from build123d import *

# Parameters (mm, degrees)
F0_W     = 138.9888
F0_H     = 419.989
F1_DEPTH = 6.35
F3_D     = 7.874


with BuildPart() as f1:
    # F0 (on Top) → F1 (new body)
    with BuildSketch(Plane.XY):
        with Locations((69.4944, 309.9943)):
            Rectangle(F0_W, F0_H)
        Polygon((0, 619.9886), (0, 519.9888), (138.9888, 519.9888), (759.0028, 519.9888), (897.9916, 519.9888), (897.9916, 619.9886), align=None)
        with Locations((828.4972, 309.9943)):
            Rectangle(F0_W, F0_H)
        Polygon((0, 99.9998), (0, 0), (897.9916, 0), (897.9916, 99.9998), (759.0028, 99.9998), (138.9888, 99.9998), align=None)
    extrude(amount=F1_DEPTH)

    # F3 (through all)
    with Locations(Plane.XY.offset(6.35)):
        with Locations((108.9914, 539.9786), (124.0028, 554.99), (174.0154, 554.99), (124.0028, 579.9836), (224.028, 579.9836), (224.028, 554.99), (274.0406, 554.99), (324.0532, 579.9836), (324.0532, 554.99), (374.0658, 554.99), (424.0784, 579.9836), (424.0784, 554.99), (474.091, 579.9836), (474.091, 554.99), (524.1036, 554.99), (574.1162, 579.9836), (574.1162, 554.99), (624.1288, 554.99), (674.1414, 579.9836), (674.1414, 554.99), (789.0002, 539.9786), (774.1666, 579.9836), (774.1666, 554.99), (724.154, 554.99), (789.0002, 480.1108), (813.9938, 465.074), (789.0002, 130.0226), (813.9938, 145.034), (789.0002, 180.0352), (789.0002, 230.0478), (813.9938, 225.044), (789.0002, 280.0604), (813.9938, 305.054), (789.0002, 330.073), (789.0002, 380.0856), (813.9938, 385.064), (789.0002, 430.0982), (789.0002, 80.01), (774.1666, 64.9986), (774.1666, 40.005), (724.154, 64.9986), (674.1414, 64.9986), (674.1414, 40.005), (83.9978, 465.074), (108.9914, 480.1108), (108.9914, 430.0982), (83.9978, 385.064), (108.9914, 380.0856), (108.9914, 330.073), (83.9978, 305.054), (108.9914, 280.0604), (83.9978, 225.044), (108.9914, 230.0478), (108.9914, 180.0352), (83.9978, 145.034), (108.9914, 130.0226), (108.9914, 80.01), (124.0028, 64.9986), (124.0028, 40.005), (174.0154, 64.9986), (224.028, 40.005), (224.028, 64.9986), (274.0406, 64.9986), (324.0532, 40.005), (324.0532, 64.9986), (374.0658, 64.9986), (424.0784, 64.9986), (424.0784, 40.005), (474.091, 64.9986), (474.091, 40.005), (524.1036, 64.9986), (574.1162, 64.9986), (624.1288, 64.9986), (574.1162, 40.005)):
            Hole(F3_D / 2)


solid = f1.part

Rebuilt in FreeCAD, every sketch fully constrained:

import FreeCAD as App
import Part
import Sketcher
Q = App.Units.Quantity

doc = App.newDocument("Part")
body = doc.addObject("PartDesign::Body", "Body")

# Sketch on XY plane
sketch1 = body.newObject("Sketcher::SketchObject", "Sketch")
sketch1.AttachmentSupport = (doc.getObject("XY_Plane"), [""])
sketch1.MapMode = "FlatFace"
sketch1.addGeometry([
    Part.LineSegment(App.Vector(897.9916, 619.9886, 0), App.Vector(0, 619.9886, 0)),  # 0
    Part.LineSegment(App.Vector(0, 619.9886, 0), App.Vector(0, 0, 0)),  # 1
    Part.LineSegment(App.Vector(0, 0, 0), App.Vector(897.9916, 0, 0)),  # 2
    Part.LineSegment(App.Vector(897.9916, 0, 0), App.Vector(897.9916, 619.9886, 0)),  # 3
    Part.LineSegment(App.Vector(138.9888, 99.9998, 0), App.Vector(138.9888, 519.9888, 0)),  # 4
    Part.LineSegment(App.Vector(138.9888, 519.9888, 0), App.Vector(759.0028, 519.9888, 0)),  # 5
    Part.LineSegment(App.Vector(759.0028, 519.9888, 0), App.Vector(759.0028, 99.9998, 0)),  # 6
    Part.LineSegment(App.Vector(759.0028, 99.9998, 0), App.Vector(138.9888, 99.9998, 0)),  # 7
], False)
sketch1.addConstraint([
    Sketcher.Constraint("Coincident", 0, 2, 1, 1),
    Sketcher.Constraint("Coincident", 1, 2, 2, 1),
    Sketcher.Constraint("Coincident", 2, 2, 3, 1),
    Sketcher.Constraint("Coincident", 3, 2, 0, 1),
    Sketcher.Constraint("Coincident", 4, 2, 5, 1),
    Sketcher.Constraint("Coincident", 5, 2, 6, 1),
    Sketcher.Constraint("Coincident", 6, 2, 7, 1),
    Sketcher.Constraint("Coincident", 7, 2, 4, 1),
    Sketcher.Constraint("Horizontal", 0),
    Sketcher.Constraint("Vertical", 1),
    Sketcher.Constraint("Horizontal", 2),
    Sketcher.Constraint("Vertical", 3),
    Sketcher.Constraint("Vertical", 4),
    Sketcher.Constraint("Horizontal", 5),
    Sketcher.Constraint("Vertical", 6),
    Sketcher.Constraint("Horizontal", 7),
    Sketcher.Constraint("Coincident", 1, 2, -1, 1),
    Sketcher.Constraint("DistanceX", 5, 1, 5, 2, Q("24.41 in")),
    Sketcher.Constraint("DistanceX", 0, 2, 0, 1, Q("35.354 in")),
    Sketcher.Constraint("DistanceY", 1, 2, 1, 1, Q("24.409 in")),
    Sketcher.Constraint("DistanceY", 4, 1, 4, 2, Q("16.535 in")),
    Sketcher.Constraint("DistanceX", -1, 1, 4, 2, Q("5.472 in")),
    Sketcher.Constraint("DistanceY", -1, 1, 4, 2, Q("20.472 in")),
])
pad1 = body.newObject("PartDesign::Pad", "Pad")
pad1.Profile = sketch1
pad1.Length = Q("0.25 in")

# Sketch on XY plane
sketch2 = body.newObject("Sketcher::SketchObject", "Sketch001")
sketch2.AttachmentSupport = (doc.getObject("XY_Plane"), [""])
sketch2.MapMode = "FlatFace"
sketch2.AttachmentOffset = App.Placement(App.Vector(0, 0, 0.25 * 25.4), App.Rotation())
sketch2.addGeometry([
    Part.Circle(App.Vector(108.9914, 539.9786, 0), App.Vector(0, 0, 1), 3.937),  # 0
    Part.Circle(App.Vector(124.0028, 554.99, 0), App.Vector(0, 0, 1), 3.937),  # 1
    Part.Circle(App.Vector(174.0154, 554.99, 0), App.Vector(0, 0, 1), 3.937),  # 2
    Part.Circle(App.Vector(124.0028, 579.9836, 0), App.Vector(0, 0, 1), 3.937),  # 3
    Part.Circle(App.Vector(224.028, 579.9836, 0), App.Vector(0, 0, 1), 3.937),  # 4
    Part.Circle(App.Vector(224.028, 554.99, 0), App.Vector(0, 0, 1), 3.937),  # 5
    Part.Circle(App.Vector(274.0406, 554.99, 0), App.Vector(0, 0, 1), 3.937),  # 6
    Part.Circle(App.Vector(324.0532, 579.9836, 0), App.Vector(0, 0, 1), 3.937),  # 7
    Part.Circle(App.Vector(324.0532, 554.99, 0), App.Vector(0, 0, 1), 3.937),  # 8
    Part.Circle(App.Vector(374.0658, 554.99, 0), App.Vector(0, 0, 1), 3.937),  # 9
    Part.Circle(App.Vector(424.0784, 579.9836, 0), App.Vector(0, 0, 1), 3.937),  # 10
    Part.Circle(App.Vector(424.0784, 554.99, 0), App.Vector(0, 0, 1), 3.937),  # 11
    Part.Circle(App.Vector(474.091, 579.9836, 0), App.Vector(0, 0, 1), 3.937),  # 12
    Part.Circle(App.Vector(474.091, 554.99, 0), App.Vector(0, 0, 1), 3.937),  # 13
    Part.Circle(App.Vector(524.1036, 554.99, 0), App.Vector(0, 0, 1), 3.937),  # 14
    Part.Circle(App.Vector(574.1162, 579.9836, 0), App.Vector(0, 0, 1), 3.937),  # 15
    Part.Circle(App.Vector(574.1162, 554.99, 0), App.Vector(0, 0, 1), 3.937),  # 16
    Part.Circle(App.Vector(624.1288, 554.99, 0), App.Vector(0, 0, 1), 3.937),  # 17
    Part.Circle(App.Vector(674.1414, 579.9836, 0), App.Vector(0, 0, 1), 3.937),  # 18
    Part.Circle(App.Vector(674.1414, 554.99, 0), App.Vector(0, 0, 1), 3.937),  # 19
    Part.Circle(App.Vector(789.0002, 539.9786, 0), App.Vector(0, 0, 1), 3.937),  # 20
    Part.Circle(App.Vector(774.1666, 579.9836, 0), App.Vector(0, 0, 1), 3.937),  # 21
    Part.Circle(App.Vector(774.1666, 554.99, 0), App.Vector(0, 0, 1), 3.937),  # 22
    Part.Circle(App.Vector(724.154, 554.99, 0), App.Vector(0, 0, 1), 3.937),  # 23
    Part.Circle(App.Vector(789.0002, 480.1108, 0), App.Vector(0, 0, 1), 3.937),  # 24
    Part.Circle(App.Vector(813.9938, 465.074, 0), App.Vector(0, 0, 1), 3.937),  # 25
    Part.Circle(App.Vector(789.0002, 130.0226, 0), App.Vector(0, 0, 1), 3.937),  # 26
    Part.Circle(App.Vector(813.9938, 145.034, 0), App.Vector(0, 0, 1), 3.937),  # 27
    Part.Circle(App.Vector(789.0002, 180.0352, 0), App.Vector(0, 0, 1), 3.937),  # 28
    Part.Circle(App.Vector(789.0002, 230.0478, 0), App.Vector(0, 0, 1), 3.937),  # 29
    Part.Circle(App.Vector(813.9938, 225.044, 0), App.Vector(0, 0, 1), 3.937),  # 30
    Part.Circle(App.Vector(789.0002, 280.0604, 0), App.Vector(0, 0, 1), 3.937),  # 31
    Part.Circle(App.Vector(813.9938, 305.054, 0), App.Vector(0, 0, 1), 3.937),  # 32
    Part.Circle(App.Vector(789.0002, 330.073, 0), App.Vector(0, 0, 1), 3.937),  # 33
    Part.Circle(App.Vector(789.0002, 380.0856, 0), App.Vector(0, 0, 1), 3.937),  # 34
    Part.Circle(App.Vector(813.9938, 385.064, 0), App.Vector(0, 0, 1), 3.937),  # 35
    Part.Circle(App.Vector(789.0002, 430.0982, 0), App.Vector(0, 0, 1), 3.937),  # 36
    Part.Circle(App.Vector(789.0002, 80.01, 0), App.Vector(0, 0, 1), 3.937),  # 37
    Part.Circle(App.Vector(774.1666, 64.9986, 0), App.Vector(0, 0, 1), 3.937),  # 38
    Part.Circle(App.Vector(774.1666, 40.005, 0), App.Vector(0, 0, 1), 3.937),  # 39
    Part.Circle(App.Vector(724.154, 64.9986, 0), App.Vector(0, 0, 1), 3.937),  # 40
    Part.Circle(App.Vector(674.1414, 64.9986, 0), App.Vector(0, 0, 1), 3.937),  # 41
    Part.Circle(App.Vector(674.1414, 40.005, 0), App.Vector(0, 0, 1), 3.937),  # 42
    Part.Circle(App.Vector(83.9978, 465.074, 0), App.Vector(0, 0, 1), 3.937),  # 43
    Part.Circle(App.Vector(108.9914, 480.1108, 0), App.Vector(0, 0, 1), 3.937),  # 44
    Part.Circle(App.Vector(108.9914, 430.0982, 0), App.Vector(0, 0, 1), 3.937),  # 45
    Part.Circle(App.Vector(83.9978, 385.064, 0), App.Vector(0, 0, 1), 3.937),  # 46
    Part.Circle(App.Vector(108.9914, 380.0856, 0), App.Vector(0, 0, 1), 3.937),  # 47
    Part.Circle(App.Vector(108.9914, 330.073, 0), App.Vector(0, 0, 1), 3.937),  # 48
    Part.Circle(App.Vector(83.9978, 305.054, 0), App.Vector(0, 0, 1), 3.937),  # 49
    Part.Circle(App.Vector(108.9914, 280.0604, 0), App.Vector(0, 0, 1), 3.937),  # 50
    Part.Circle(App.Vector(83.9978, 225.044, 0), App.Vector(0, 0, 1), 3.937),  # 51
    Part.Circle(App.Vector(108.9914, 230.0478, 0), App.Vector(0, 0, 1), 3.937),  # 52
    Part.Circle(App.Vector(108.9914, 180.0352, 0), App.Vector(0, 0, 1), 3.937),  # 53
    Part.Circle(App.Vector(83.9978, 145.034, 0), App.Vector(0, 0, 1), 3.937),  # 54
    Part.Circle(App.Vector(108.9914, 130.0226, 0), App.Vector(0, 0, 1), 3.937),  # 55
    Part.Circle(App.Vector(108.9914, 80.01, 0), App.Vector(0, 0, 1), 3.937),  # 56
    Part.Circle(App.Vector(124.0028, 64.9986, 0), App.Vector(0, 0, 1), 3.937),  # 57
    Part.Circle(App.Vector(124.0028, 40.005, 0), App.Vector(0, 0, 1), 3.937),  # 58
    Part.Circle(App.Vector(174.0154, 64.9986, 0), App.Vector(0, 0, 1), 3.937),  # 59
    Part.Circle(App.Vector(224.028, 40.005, 0), App.Vector(0, 0, 1), 3.937),  # 60
    Part.Circle(App.Vector(224.028, 64.9986, 0), App.Vector(0, 0, 1), 3.937),  # 61
    Part.Circle(App.Vector(274.0406, 64.9986, 0), App.Vector(0, 0, 1), 3.937),  # 62
    Part.Circle(App.Vector(324.0532, 40.005, 0), App.Vector(0, 0, 1), 3.937),  # 63
    Part.Circle(App.Vector(324.0532, 64.9986, 0), App.Vector(0, 0, 1), 3.937),  # 64
    Part.Circle(App.Vector(374.0658, 64.9986, 0), App.Vector(0, 0, 1), 3.937),  # 65
    Part.Circle(App.Vector(424.0784, 64.9986, 0), App.Vector(0, 0, 1), 3.937),  # 66
    Part.Circle(App.Vector(424.0784, 40.005, 0), App.Vector(0, 0, 1), 3.937),  # 67
    Part.Circle(App.Vector(474.091, 64.9986, 0), App.Vector(0, 0, 1), 3.937),  # 68
    Part.Circle(App.Vector(474.091, 40.005, 0), App.Vector(0, 0, 1), 3.937),  # 69
    Part.Circle(App.Vector(524.1036, 64.9986, 0), App.Vector(0, 0, 1), 3.937),  # 70
    Part.Circle(App.Vector(574.1162, 64.9986, 0), App.Vector(0, 0, 1), 3.937),  # 71
    Part.Circle(App.Vector(624.1288, 64.9986, 0), App.Vector(0, 0, 1), 3.937),  # 72
    Part.Circle(App.Vector(574.1162, 40.005, 0), App.Vector(0, 0, 1), 3.937),  # 73
], False)
sketch2.addConstraint([
    Sketcher.Constraint("Equal", 0, 1),
    Sketcher.Constraint("Equal", 1, 2),
    Sketcher.Constraint("Equal", 2, 3),
    Sketcher.Constraint("Equal", 3, 4),
    Sketcher.Constraint("Equal", 4, 5),
    Sketcher.Constraint("Equal", 5, 6),
    Sketcher.Constraint("Equal", 6, 7),
    Sketcher.Constraint("Equal", 7, 8),
    Sketcher.Constraint("Equal", 8, 9),
    Sketcher.Constraint("Equal", 9, 10),
    Sketcher.Constraint("Equal", 10, 11),
    Sketcher.Constraint("Equal", 11, 12),
    Sketcher.Constraint("Equal", 12, 13),
    Sketcher.Constraint("Equal", 13, 14),
    Sketcher.Constraint("Equal", 14, 15),
    Sketcher.Constraint("Equal", 15, 16),
    Sketcher.Constraint("Equal", 16, 17),
    Sketcher.Constraint("Equal", 17, 18),
    Sketcher.Constraint("Equal", 18, 19),
    Sketcher.Constraint("Equal", 19, 20),
    Sketcher.Constraint("Equal", 20, 21),
    Sketcher.Constraint("Equal", 21, 22),
    Sketcher.Constraint("Equal", 22, 23),
    Sketcher.Constraint("Equal", 23, 24),
    Sketcher.Constraint("Equal", 24, 25),
    Sketcher.Constraint("Equal", 25, 26),
    Sketcher.Constraint("Equal", 26, 27),
    Sketcher.Constraint("Equal", 27, 28),
    Sketcher.Constraint("Equal", 28, 29),
    Sketcher.Constraint("Equal", 29, 30),
    Sketcher.Constraint("Equal", 30, 31),
    Sketcher.Constraint("Equal", 31, 32),
    Sketcher.Constraint("Equal", 32, 33),
    Sketcher.Constraint("Equal", 33, 34),
    Sketcher.Constraint("Equal", 34, 35),
    Sketcher.Constraint("Equal", 35, 36),
    Sketcher.Constraint("Equal", 36, 37),
    Sketcher.Constraint("Equal", 37, 38),
    Sketcher.Constraint("Equal", 38, 39),
    Sketcher.Constraint("Equal", 39, 40),
    Sketcher.Constraint("Equal", 40, 41),
    Sketcher.Constraint("Equal", 41, 42),
    Sketcher.Constraint("Equal", 42, 43),
    Sketcher.Constraint("Equal", 43, 44),
    Sketcher.Constraint("Equal", 44, 45),
    Sketcher.Constraint("Equal", 45, 46),
    Sketcher.Constraint("Equal", 46, 47),
    Sketcher.Constraint("Equal", 47, 48),
    Sketcher.Constraint("Equal", 48, 49),
    Sketcher.Constraint("Equal", 49, 50),
    Sketcher.Constraint("Equal", 50, 51),
    Sketcher.Constraint("Equal", 51, 52),
    Sketcher.Constraint("Equal", 52, 53),
    Sketcher.Constraint("Equal", 53, 54),
    Sketcher.Constraint("Equal", 54, 55),
    Sketcher.Constraint("Equal", 55, 56),
    Sketcher.Constraint("Equal", 56, 57),
    Sketcher.Constraint("Equal", 57, 58),
    Sketcher.Constraint("Equal", 58, 59),
    Sketcher.Constraint("Equal", 59, 60),
    Sketcher.Constraint("Equal", 60, 61),
    Sketcher.Constraint("Equal", 61, 62),
    Sketcher.Constraint("Equal", 62, 63),
    Sketcher.Constraint("Equal", 63, 64),
    Sketcher.Constraint("Equal", 64, 65),
    Sketcher.Constraint("Equal", 65, 66),
    Sketcher.Constraint("Equal", 66, 67),
    Sketcher.Constraint("Equal", 67, 68),
    Sketcher.Constraint("Equal", 68, 69),
    Sketcher.Constraint("Equal", 69, 70),
    Sketcher.Constraint("Equal", 70, 71),
    Sketcher.Constraint("Equal", 71, 72),
    Sketcher.Constraint("Equal", 72, 73),
    Sketcher.Constraint("Horizontal", 1, 3, 2, 3),
    Sketcher.Constraint("Horizontal", 3, 3, 4, 3),
    Sketcher.Constraint("Horizontal", 2, 3, 5, 3),
    Sketcher.Constraint("Horizontal", 5, 3, 6, 3),
    Sketcher.Constraint("Horizontal", 4, 3, 7, 3),
    Sketcher.Constraint("Horizontal", 6, 3, 8, 3),
    Sketcher.Constraint("Horizontal", 8, 3, 9, 3),
    Sketcher.Constraint("Horizontal", 7, 3, 10, 3),
    Sketcher.Constraint("Horizontal", 9, 3, 11, 3),
    Sketcher.Constraint("Horizontal", 10, 3, 12, 3),
    Sketcher.Constraint("Horizontal", 11, 3, 13, 3),
    Sketcher.Constraint("Horizontal", 13, 3, 14, 3),
    Sketcher.Constraint("Horizontal", 12, 3, 15, 3),
    Sketcher.Constraint("Horizontal", 14, 3, 16, 3),
    Sketcher.Constraint("Horizontal", 16, 3, 17, 3),
    Sketcher.Constraint("Horizontal", 15, 3, 18, 3),
    Sketcher.Constraint("Horizontal", 17, 3, 19, 3),
    Sketcher.Constraint("Horizontal", 0, 3, 20, 3),
    Sketcher.Constraint("Horizontal", 18, 3, 21, 3),
    Sketcher.Constraint("Horizontal", 19, 3, 22, 3),
    Sketcher.Constraint("Horizontal", 22, 3, 23, 3),
    Sketcher.Constraint("Horizontal", 38, 3, 40, 3),
    Sketcher.Constraint("Horizontal", 40, 3, 41, 3),
    Sketcher.Constraint("Horizontal", 39, 3, 42, 3),
    Sketcher.Constraint("Horizontal", 25, 3, 43, 3),
    Sketcher.Constraint("Horizontal", 24, 3, 44, 3),
    Sketcher.Constraint("Horizontal", 36, 3, 45, 3),
    Sketcher.Constraint("Horizontal", 35, 3, 46, 3),
    Sketcher.Constraint("Horizontal", 34, 3, 47, 3),
    Sketcher.Constraint("Horizontal", 33, 3, 48, 3),
    Sketcher.Constraint("Horizontal", 32, 3, 49, 3),
    Sketcher.Constraint("Horizontal", 31, 3, 50, 3),
    Sketcher.Constraint("Horizontal", 30, 3, 51, 3),
    Sketcher.Constraint("Horizontal", 29, 3, 52, 3),
    Sketcher.Constraint("Horizontal", 28, 3, 53, 3),
    Sketcher.Constraint("Horizontal", 27, 3, 54, 3),
    Sketcher.Constraint("Horizontal", 26, 3, 55, 3),
    Sketcher.Constraint("Horizontal", 37, 3, 56, 3),
    Sketcher.Constraint("Horizontal", 41, 3, 57, 3),
    Sketcher.Constraint("Horizontal", 42, 3, 58, 3),
    Sketcher.Constraint("Horizontal", 57, 3, 59, 3),
    Sketcher.Constraint("Horizontal", 58, 3, 60, 3),
    Sketcher.Constraint("Horizontal", 59, 3, 61, 3),
    Sketcher.Constraint("Horizontal", 61, 3, 62, 3),
    Sketcher.Constraint("Horizontal", 60, 3, 63, 3),
    Sketcher.Constraint("Horizontal", 62, 3, 64, 3),
    Sketcher.Constraint("Horizontal", 64, 3, 65, 3),
    Sketcher.Constraint("Horizontal", 65, 3, 66, 3),
    Sketcher.Constraint("Horizontal", 63, 3, 67, 3),
    Sketcher.Constraint("Horizontal", 66, 3, 68, 3),
    Sketcher.Constraint("Horizontal", 67, 3, 69, 3),
    Sketcher.Constraint("Horizontal", 68, 3, 70, 3),
    Sketcher.Constraint("Horizontal", 70, 3, 71, 3),
    Sketcher.Constraint("Horizontal", 71, 3, 72, 3),
    Sketcher.Constraint("Horizontal", 69, 3, 73, 3),
    Sketcher.Constraint("Vertical", 1, 3, 3, 3),
    Sketcher.Constraint("Vertical", 4, 3, 5, 3),
    Sketcher.Constraint("Vertical", 7, 3, 8, 3),
    Sketcher.Constraint("Vertical", 10, 3, 11, 3),
    Sketcher.Constraint("Vertical", 12, 3, 13, 3),
    Sketcher.Constraint("Vertical", 15, 3, 16, 3),
    Sketcher.Constraint("Vertical", 18, 3, 19, 3),
    Sketcher.Constraint("Vertical", 21, 3, 22, 3),
    Sketcher.Constraint("Vertical", 20, 3, 24, 3),
    Sketcher.Constraint("Vertical", 24, 3, 26, 3),
    Sketcher.Constraint("Vertical", 25, 3, 27, 3),
    Sketcher.Constraint("Vertical", 26, 3, 28, 3),
    Sketcher.Constraint("Vertical", 28, 3, 29, 3),
    Sketcher.Constraint("Vertical", 27, 3, 30, 3),
    Sketcher.Constraint("Vertical", 29, 3, 31, 3),
    Sketcher.Constraint("Vertical", 30, 3, 32, 3),
    Sketcher.Constraint("Vertical", 31, 3, 33, 3),
    Sketcher.Constraint("Vertical", 33, 3, 34, 3),
    Sketcher.Constraint("Vertical", 32, 3, 35, 3),
    Sketcher.Constraint("Vertical", 34, 3, 36, 3),
    Sketcher.Constraint("Vertical", 36, 3, 37, 3),
    Sketcher.Constraint("Vertical", 22, 3, 38, 3),
    Sketcher.Constraint("Vertical", 38, 3, 39, 3),
    Sketcher.Constraint("Vertical", 23, 3, 40, 3),
    Sketcher.Constraint("Vertical", 19, 3, 41, 3),
    Sketcher.Constraint("Vertical", 41, 3, 42, 3),
    Sketcher.Constraint("Vertical", 0, 3, 44, 3),
    Sketcher.Constraint("Vertical", 44, 3, 45, 3),
    Sketcher.Constraint("Vertical", 43, 3, 46, 3),
    Sketcher.Constraint("Vertical", 45, 3, 47, 3),
    Sketcher.Constraint("Vertical", 47, 3, 48, 3),
    Sketcher.Constraint("Vertical", 46, 3, 49, 3),
    Sketcher.Constraint("Vertical", 48, 3, 50, 3),
    Sketcher.Constraint("Vertical", 49, 3, 51, 3),
    Sketcher.Constraint("Vertical", 50, 3, 52, 3),
    Sketcher.Constraint("Vertical", 52, 3, 53, 3),
    Sketcher.Constraint("Vertical", 51, 3, 54, 3),
    Sketcher.Constraint("Vertical", 53, 3, 55, 3),
    Sketcher.Constraint("Vertical", 55, 3, 56, 3),
    Sketcher.Constraint("Vertical", 3, 3, 57, 3),
    Sketcher.Constraint("Vertical", 57, 3, 58, 3),
    Sketcher.Constraint("Vertical", 2, 3, 59, 3),
    Sketcher.Constraint("Vertical", 5, 3, 60, 3),
    Sketcher.Constraint("Vertical", 60, 3, 61, 3),
    Sketcher.Constraint("Vertical", 6, 3, 62, 3),
    Sketcher.Constraint("Vertical", 8, 3, 63, 3),
    Sketcher.Constraint("Vertical", 63, 3, 64, 3),
    Sketcher.Constraint("Vertical", 9, 3, 65, 3),
    Sketcher.Constraint("Vertical", 11, 3, 66, 3),
    Sketcher.Constraint("Vertical", 66, 3, 67, 3),
    Sketcher.Constraint("Vertical", 13, 3, 68, 3),
    Sketcher.Constraint("Vertical", 68, 3, 69, 3),
    Sketcher.Constraint("Vertical", 14, 3, 70, 3),
    Sketcher.Constraint("Vertical", 16, 3, 71, 3),
    Sketcher.Constraint("Vertical", 17, 3, 72, 3),
    Sketcher.Constraint("Vertical", 71, 3, 73, 3),
    Sketcher.Constraint("Diameter", 0, Q("0.31 in")),
    Sketcher.Constraint("DistanceY", -1, 1, 1, 3, Q("21.85 in")),
    Sketcher.Constraint("DistanceX", -1, 1, 4, 3, Q("8.82 in")),
    Sketcher.Constraint("DistanceX", -1, 1, 23, 3, Q("28.51 in")),
    Sketcher.Constraint("DistanceY", -1, 1, 25, 3, Q("18.31 in")),
    Sketcher.Constraint("DistanceY", -1, 1, 27, 3, Q("5.71 in")),
    Sketcher.Constraint("DistanceY", -1, 1, 30, 3, Q("8.86 in")),
    Sketcher.Constraint("DistanceY", -1, 1, 32, 3, Q("12.01 in")),
    Sketcher.Constraint("DistanceY", -1, 1, 35, 3, Q("15.16 in")),
    Sketcher.Constraint("DistanceY", -1, 1, 37, 3, Q("3.15 in")),
    Sketcher.Constraint("DistanceX", -1, 1, 0, 3, Q("4.291 in")),
    Sketcher.Constraint("DistanceY", -1, 1, 0, 3, Q("21.259 in")),
    Sketcher.Constraint("DistanceX", -1, 1, 1, 3, Q("4.882 in")),
    Sketcher.Constraint("DistanceX", -1, 1, 2, 3, Q("6.851 in")),
    Sketcher.Constraint("DistanceY", -1, 1, 3, 3, Q("22.834 in")),
    Sketcher.Constraint("DistanceX", -1, 1, 6, 3, Q("10.789 in")),
    Sketcher.Constraint("DistanceX", -1, 1, 7, 3, Q("12.758 in")),
    Sketcher.Constraint("DistanceX", -1, 1, 9, 3, Q("14.727 in")),
    Sketcher.Constraint("DistanceX", -1, 1, 10, 3, Q("16.696 in")),
    Sketcher.Constraint("DistanceX", -1, 1, 12, 3, Q("18.665 in")),
    Sketcher.Constraint("DistanceX", -1, 1, 14, 3, Q("20.634 in")),
    Sketcher.Constraint("DistanceX", -1, 1, 15, 3, Q("22.603 in")),
    Sketcher.Constraint("DistanceX", -1, 1, 17, 3, Q("24.572 in")),
    Sketcher.Constraint("DistanceX", -1, 1, 18, 3, Q("26.541 in")),
    Sketcher.Constraint("DistanceX", -1, 1, 20, 3, Q("31.063 in")),
    Sketcher.Constraint("DistanceX", -1, 1, 21, 3, Q("30.479 in")),
    Sketcher.Constraint("DistanceY", -1, 1, 24, 3, Q("18.902 in")),
    Sketcher.Constraint("DistanceX", -1, 1, 25, 3, Q("32.047 in")),
    Sketcher.Constraint("DistanceY", -1, 1, 26, 3, Q("5.119 in")),
    Sketcher.Constraint("DistanceY", -1, 1, 28, 3, Q("7.088 in")),
    Sketcher.Constraint("DistanceY", -1, 1, 29, 3, Q("9.057 in")),
    Sketcher.Constraint("DistanceY", -1, 1, 31, 3, Q("11.026 in")),
    Sketcher.Constraint("DistanceY", -1, 1, 33, 3, Q("12.995 in")),
    Sketcher.Constraint("DistanceY", -1, 1, 34, 3, Q("14.964 in")),
    Sketcher.Constraint("DistanceY", -1, 1, 36, 3, Q("16.933 in")),
    Sketcher.Constraint("DistanceY", -1, 1, 38, 3, Q("2.559 in")),
    Sketcher.Constraint("DistanceY", -1, 1, 39, 3, Q("1.575 in")),
    Sketcher.Constraint("DistanceX", -1, 1, 43, 3, Q("3.307 in")),
])
doc.recompute()
hole = body.newObject("PartDesign::Hole", "Hole")
hole.Profile = sketch2
hole.ThreadType = "None"
hole.Diameter = Q("0.31 in")
hole.DepthType = "ThroughAll"

doc.recompute()
